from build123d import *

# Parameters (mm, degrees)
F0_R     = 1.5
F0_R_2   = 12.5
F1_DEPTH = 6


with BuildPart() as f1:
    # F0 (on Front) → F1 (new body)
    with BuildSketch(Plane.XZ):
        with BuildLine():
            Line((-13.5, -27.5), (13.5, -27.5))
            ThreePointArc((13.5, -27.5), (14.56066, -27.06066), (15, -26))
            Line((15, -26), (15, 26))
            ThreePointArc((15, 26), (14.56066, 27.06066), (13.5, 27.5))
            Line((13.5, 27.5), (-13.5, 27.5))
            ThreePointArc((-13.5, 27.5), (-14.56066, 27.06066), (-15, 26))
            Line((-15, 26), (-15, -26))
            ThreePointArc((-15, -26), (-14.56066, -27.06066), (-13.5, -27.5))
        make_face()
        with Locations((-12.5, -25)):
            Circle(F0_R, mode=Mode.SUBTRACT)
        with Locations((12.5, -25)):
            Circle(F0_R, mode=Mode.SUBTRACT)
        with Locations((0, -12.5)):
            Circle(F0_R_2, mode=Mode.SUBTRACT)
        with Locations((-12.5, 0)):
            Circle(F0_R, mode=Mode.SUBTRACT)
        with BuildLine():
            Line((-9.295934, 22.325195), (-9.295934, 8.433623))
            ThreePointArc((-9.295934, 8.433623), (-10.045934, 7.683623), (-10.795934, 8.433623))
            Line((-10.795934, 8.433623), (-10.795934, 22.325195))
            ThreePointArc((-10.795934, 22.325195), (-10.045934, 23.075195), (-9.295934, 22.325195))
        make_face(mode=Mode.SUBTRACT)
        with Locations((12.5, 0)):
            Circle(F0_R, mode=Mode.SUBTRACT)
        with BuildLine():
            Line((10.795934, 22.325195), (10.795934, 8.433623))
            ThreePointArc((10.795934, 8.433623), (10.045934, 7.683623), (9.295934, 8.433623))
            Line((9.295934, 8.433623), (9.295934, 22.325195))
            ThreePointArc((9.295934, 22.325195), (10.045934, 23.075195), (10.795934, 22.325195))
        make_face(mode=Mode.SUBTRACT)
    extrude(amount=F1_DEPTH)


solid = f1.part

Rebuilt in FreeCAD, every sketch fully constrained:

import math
import FreeCAD as App
import Part
import Sketcher
from FreeCAD import Vector

doc = App.newDocument("Part")
params = doc.addObject("Spreadsheet::Sheet", "Params")
for row, (alias, value) in enumerate([
    ("sketch1_diameter", "3 mm"),
    ("sketch1_diameter2", "25 mm"),
    ("sketch1_width", "27 mm"),
    ("sketch1_height", "52 mm"),
    ("sketch1_radius", "0.75 mm"),
    ("pad1_length", "6 mm"),
], start=1):
    params.set(f"A{row}", alias)
    params.set(f"B{row}", "=" + value)
    params.setAlias(f"B{row}", alias)

body = doc.addObject("PartDesign::Body", "Body")

# Sketch on XZ plane
sketch1 = doc.addObject("Sketcher::SketchObject", "Sketch")
body.addObject(sketch1)
sketch1.AttachmentSupport = (doc.XZ_Plane, [""])
sketch1.MapMode = "FlatFace"
sketch1.addGeometry([
    Part.LineSegment(Vector(-13.5, -27.5, 0), Vector(13.5, -27.5, 0)),  # 0
    Part.ArcOfCircle(Part.Circle(Vector(13.5, -26, 0), Vector(0, 0, 1), 1.5), math.radians(-90), math.radians(0)),  # 1
    Part.LineSegment(Vector(15, -26, 0), Vector(15, 26, 0)),  # 2
    Part.ArcOfCircle(Part.Circle(Vector(13.5, 26, 0), Vector(0, 0, 1), 1.5), math.radians(0), math.radians(90)),  # 3
    Part.LineSegment(Vector(13.5, 27.5, 0), Vector(-13.5, 27.5, 0)),  # 4
    Part.ArcOfCircle(Part.Circle(Vector(-13.5, 26, 0), Vector(0, 0, 1), 1.5), math.radians(90), math.radians(180)),  # 5
    Part.LineSegment(Vector(-15, 26, 0), Vector(-15, -26, 0)),  # 6
    Part.ArcOfCircle(Part.Circle(Vector(-13.5, -26, 0), Vector(0, 0, 1), 1.5), math.radians(-180), math.radians(-90)),  # 7
    Part.Circle(Vector(-12.5, -25, 0), Vector(0, 0, 1), 1.5),  # 8
    Part.Circle(Vector(12.5, -25, 0), Vector(0, 0, 1), 1.5),  # 9
    Part.Circle(Vector(0, -12.5, 0), Vector(0, 0, 1), 12.5),  # 10
    Part.Circle(Vector(-12.5, 0, 0), Vector(0, 0, 1), 1.5),  # 11
    Part.ArcOfCircle(Part.Circle(Vector(-10, 22.3, 0), Vector(0, 0, 1), 0.8), math.radians(0), math.radians(180)),  # 12
    Part.LineSegment(Vector(-9.3, 22.3, 0), Vector(-9.3, 8.4, 0)),  # 13
    Part.ArcOfCircle(Part.Circle(Vector(-10, 8.4, 0), Vector(0, 0, 1), 0.8), math.radians(180), math.radians(360)),  # 14
    Part.LineSegment(Vector(-10.8, 8.4, 0), Vector(-10.8, 22.3, 0)),  # 15
    Part.Circle(Vector(12.5, 0, 0), Vector(0, 0, 1), 1.5),  # 16
    Part.ArcOfCircle(Part.Circle(Vector(10, 22.3, 0), Vector(0, 0, 1), 0.8), math.radians(0), math.radians(180)),  # 17
    Part.LineSegment(Vector(10.8, 22.3, 0), Vector(10.8, 8.4, 0)),  # 18
    Part.ArcOfCircle(Part.Circle(Vector(10, 8.4, 0), Vector(0, 0, 1), 0.8), math.radians(180), math.radians(360)),  # 19
    Part.LineSegment(Vector(9.3, 8.4, 0), Vector(9.3, 22.3, 0)),  # 20
], False)
sketch1.addConstraint([
    Sketcher.Constraint("Tangent", 0, 2, 1, 1),
    Sketcher.Constraint("Tangent", 1, 2, 2, 1),
    Sketcher.Constraint("Tangent", 2, 2, 3, 1),
    Sketcher.Constraint("Tangent", 3, 2, 4, 1),
    Sketcher.Constraint("Tangent", 4, 2, 5, 1),
    Sketcher.Constraint("Tangent", 5, 2, 6, 1),
    Sketcher.Constraint("Tangent", 6, 2, 7, 1),
    Sketcher.Constraint("Tangent", 7, 2, 0, 1),
    Sketcher.Constraint("Tangent", 12, 1, 13, 1),
    Sketcher.Constraint("Tangent", 13, 2, 14, 2),
    Sketcher.Constraint("Tangent", 14, 1, 15, 1),
    Sketcher.Constraint("Tangent", 15, 2, 12, 2),
    Sketcher.Constraint("Tangent", 17, 1, 18, 1),
    Sketcher.Constraint("Tangent", 18, 2, 19, 2),
    Sketcher.Constraint("Tangent", 19, 1, 20, 1),
    Sketcher.Constraint("Tangent", 20, 2, 17, 2),
    Sketcher.Constraint("Horizontal", 0),
    Sketcher.Constraint("Vertical", 2),
    Sketcher.Constraint("Horizontal", 4),
    Sketcher.Constraint("Vertical", 6),
    Sketcher.Constraint("Vertical", 13),
    Sketcher.Constraint("Vertical", 15),
    Sketcher.Constraint("Vertical", 18),
    Sketcher.Constraint("Vertical", 20),
    Sketcher.Constraint("Equal", 1, 3),
    Sketcher.Constraint("Equal", 3, 5),
    Sketcher.Constraint("Equal", 5, 7),
    Sketcher.Constraint("Equal", 7, 8),
    Sketcher.Constraint("Equal", 8, 9),
    Sketcher.Constraint("Equal", 9, 11),
    Sketcher.Constraint("Equal", 11, 16),
    Sketcher.Constraint("Equal", 14, 17),
    Sketcher.Constraint("Symmetric", 1, 3, 5, 3, -1, 1),
    Sketcher.Constraint("Symmetric", 11, 3, 16, 3, -1, 1),
    Sketcher.Constraint("Symmetric", 8, 3, 9, 3, -2),
    Sketcher.Constraint("Symmetric", 12, 3, 17, 3, -2),
    Sketcher.Constraint("PointOnObject", 10, 3, -2),
    Sketcher.Constraint("PointOnObject", 11, 3, -1),
    Sketcher.Constraint("Horizontal", 14, 3, 19, 3),
    Sketcher.Constraint("Vertical", 8, 3, 11, 3),
    Sketcher.Constraint("Diameter", 8, 3.0),
    Sketcher.Constraint("Diameter", 10, 25.0),
    Sketcher.Constraint("DistanceX", 0, 1, 0, 2, 27.0),
    Sketcher.Constraint("DistanceY", 2, 1, 2, 2, 52.0),
    Sketcher.Constraint("Radius", 12, 0.75),
    Sketcher.Constraint("DistanceY", 8, 3, -1, 1, 25.0),
    Sketcher.Constraint("DistanceX", 7, 3, 8, 3, 0.999999),
    Sketcher.Constraint("DistanceY", 0, 2, 10, 3, 15.0),
    Sketcher.Constraint("DistanceY", 13, 2, 13, 1, 13.891572),
    Sketcher.Constraint("DistanceX", 12, 3, 17, 3, 20.091868),
    Sketcher.Constraint("DistanceY", -1, 1, 12, 3, 22.325195),
])
sketch1.setExpression("Constraints[40]", "Params.sketch1_diameter")
sketch1.setExpression("Constraints[41]", "Params.sketch1_diameter2")
sketch1.setExpression("Constraints[42]", "Params.sketch1_width")
sketch1.setExpression("Constraints[43]", "Params.sketch1_height")
sketch1.setExpression("Constraints[44]", "Params.sketch1_radius")
pad1 = doc.addObject("PartDesign::Pad", "Pad")
body.addObject(pad1)
pad1.Profile = sketch1
pad1.setExpression("Length", "Params.pad1_length")

doc.recompute()
